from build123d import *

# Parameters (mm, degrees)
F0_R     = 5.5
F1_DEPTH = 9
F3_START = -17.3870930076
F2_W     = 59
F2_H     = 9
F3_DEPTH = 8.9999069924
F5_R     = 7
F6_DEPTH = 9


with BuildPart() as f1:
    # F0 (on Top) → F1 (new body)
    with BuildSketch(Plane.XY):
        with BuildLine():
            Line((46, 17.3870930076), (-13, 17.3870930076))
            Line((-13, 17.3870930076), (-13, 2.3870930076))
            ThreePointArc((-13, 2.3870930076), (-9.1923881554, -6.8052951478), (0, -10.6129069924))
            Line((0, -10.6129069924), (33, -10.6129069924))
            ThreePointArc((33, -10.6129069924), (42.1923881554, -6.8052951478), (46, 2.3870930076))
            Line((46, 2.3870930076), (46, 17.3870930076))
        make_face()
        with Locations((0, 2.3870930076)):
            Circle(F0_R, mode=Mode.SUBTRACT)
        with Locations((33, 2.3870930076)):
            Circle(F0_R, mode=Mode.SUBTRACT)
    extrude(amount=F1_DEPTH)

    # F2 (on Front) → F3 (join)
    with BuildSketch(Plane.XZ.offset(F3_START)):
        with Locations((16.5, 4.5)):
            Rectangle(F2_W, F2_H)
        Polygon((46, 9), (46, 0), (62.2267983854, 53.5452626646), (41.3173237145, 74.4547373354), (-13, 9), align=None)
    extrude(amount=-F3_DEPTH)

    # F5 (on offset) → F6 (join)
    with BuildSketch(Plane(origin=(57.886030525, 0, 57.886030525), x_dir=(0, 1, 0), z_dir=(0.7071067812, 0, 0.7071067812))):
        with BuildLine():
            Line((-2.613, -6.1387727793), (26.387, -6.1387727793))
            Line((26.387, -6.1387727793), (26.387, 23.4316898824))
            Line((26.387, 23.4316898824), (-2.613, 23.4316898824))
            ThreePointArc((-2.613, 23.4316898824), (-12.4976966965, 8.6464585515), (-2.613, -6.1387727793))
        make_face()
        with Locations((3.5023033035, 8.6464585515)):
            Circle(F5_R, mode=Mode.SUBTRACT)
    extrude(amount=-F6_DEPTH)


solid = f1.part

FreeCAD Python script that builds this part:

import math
import FreeCAD as App
import Part
import Sketcher
from FreeCAD import Vector
Q = App.Units.Quantity


def add_polygon(sketch, points):
    """Adds a closed chain of lines whose ends are joined by coincident constraints."""
    first, n = sketch.GeometryCount, len(points)
    for a, b in zip(points, points[1:] + points[:1]):
        sketch.addGeometry(Part.LineSegment(App.Vector(*a, 0), App.Vector(*b, 0)), False)
    for i in range(n):
        sketch.addConstraint(Sketcher.Constraint("Coincident", first + i, 2, first + (i + 1) % n, 1))

doc = App.newDocument("Part")
body = doc.addObject("PartDesign::Body", "Body")

sketch1 = body.newObject("Sketcher::SketchObject", "Sketch")
sketch1.AttachmentSupport = (doc.getObject("XY_Plane"), [""])
sketch1.MapMode = "FlatFace"
sketch1.addGeometry(Part.LineSegment(Vector(46, 17, 0), Vector(-13, 17, 0)), False)
sketch1.addGeometry(Part.LineSegment(Vector(-13, 17, 0), Vector(-13, 2, 0)), False)
sketch1.addGeometry(Part.ArcOfCircle(Part.Circle(Vector(0, 2, 0), Vector(0, 0, 1), 13), math.radians(180), math.radians(270)), False)
sketch1.addGeometry(Part.LineSegment(Vector(0, -11, 0), Vector(33, -11, 0)), False)
sketch1.addGeometry(Part.ArcOfCircle(Part.Circle(Vector(33, 2, 0), Vector(0, 0, 1), 13), math.radians(-90), math.radians(0)), False)
sketch1.addGeometry(Part.LineSegment(Vector(46, 2, 0), Vector(46, 17, 0)), False)
sketch1.addGeometry(Part.Circle(Vector(0, 2, 0), Vector(0, 0, 1), 6), False)
sketch1.addGeometry(Part.Circle(Vector(33, 2, 0), Vector(0, 0, 1), 6), False)
sketch1.addConstraint(Sketcher.Constraint("Coincident", 0, 2, 1, 1))
sketch1.addConstraint(Sketcher.Constraint("Tangent", 1, 2, 2, 1))
sketch1.addConstraint(Sketcher.Constraint("Tangent", 2, 2, 3, 1))
sketch1.addConstraint(Sketcher.Constraint("Tangent", 3, 2, 4, 1))
sketch1.addConstraint(Sketcher.Constraint("Tangent", 4, 2, 5, 1))
sketch1.addConstraint(Sketcher.Constraint("Coincident", 5, 2, 0, 1))
sketch1.addConstraint(Sketcher.Constraint("Horizontal", 0))
sketch1.addConstraint(Sketcher.Constraint("Vertical", 1))
sketch1.addConstraint(Sketcher.Constraint("Horizontal", 3))
sketch1.addConstraint(Sketcher.Constraint("Vertical", 5))
sketch1.addConstraint(Sketcher.Constraint("Coincident", 6, 3, 2, 3))
sketch1.addConstraint(Sketcher.Constraint("Coincident", 7, 3, 4, 3))
sketch1.addConstraint(Sketcher.Constraint("Equal", 2, 4))
sketch1.addConstraint(Sketcher.Constraint("Equal", 6, 7))
sketch1.addConstraint(Sketcher.Constraint("PointOnObject", 2, 3, -2))
sketch1.addConstraint(Sketcher.Constraint("Diameter", 6, 11.0))
sketch1.addConstraint(Sketcher.Constraint("Radius", 2, 13.0))
sketch1.addConstraint(Sketcher.Constraint("DistanceX", 0, 2, 0, 1, 59.0))
sketch1.addConstraint(Sketcher.Constraint("DistanceY", 1, 2, 1, 1, 15.0))
sketch1.addConstraint(Sketcher.Constraint("DistanceY", -1, 1, 2, 3, 2.387093))
pad1 = body.newObject("PartDesign::Pad", "Pad")
pad1.Profile = sketch1
pad1.Length = 9

sketch2 = body.newObject("Sketcher::SketchObject", "Sketch001")
sketch2.AttachmentSupport = (doc.getObject("XZ_Plane"), [""])
sketch2.MapMode = "FlatFace"
sketch2.AttachmentOffset = App.Placement(Vector(0, 0, -17.387093), App.Rotation())
add_polygon(sketch2, [(-13, 9), (-13, 0), (46, 0), (62, 54), (41, 74)])
sketch2.addConstraint(Sketcher.Constraint("Vertical", 0))
sketch2.addConstraint(Sketcher.Constraint("Horizontal", 1))
sketch2.addConstraint(Sketcher.Constraint("PointOnObject", 0, 2, -1))
sketch2.addConstraint(Sketcher.Constraint("DistanceX", 1, 1, 1, 2, 59.0))
sketch2.addConstraint(Sketcher.Constraint("DistanceY", 0, 2, 0, 1, 9.0))
sketch2.addConstraint(Sketcher.Constraint("Angle", 3, Q("135 deg")))
sketch2.addConstraint(Sketcher.Constraint("DistanceX", 0, 2, -1, 1, 13.0))
sketch2.addConstraint(Sketcher.Constraint("DistanceX", -1, 1, 2, 2, 62.226798))
sketch2.addConstraint(Sketcher.Constraint("Distance", 2, 55.950015))
sketch2.addConstraint(Sketcher.Constraint("Distance", 3, 29.570463))
pad2 = body.newObject("PartDesign::Pad", "Pad001")
pad2.Profile = sketch2
pad2.Length = 8.999907
pad2.Reversed = True

sketch3 = body.newObject("Sketcher::SketchObject", "Sketch002")
sketch3.Placement = App.Placement(Vector(57.886031, 0, 57.886031), App.Rotation(Vector(0, 1, 0), Vector(-0.707106781, 0, 0.707106781), Vector(0.707106781, 0, 0.707106781), "ZXY"))
sketch3.addGeometry(Part.LineSegment(Vector(-3, -6, 0), Vector(26, -6, 0)), False)
sketch3.addGeometry(Part.LineSegment(Vector(26, -6, 0), Vector(26, 23, 0)), False)
sketch3.addGeometry(Part.LineSegment(Vector(26, 23, 0), Vector(-3, 23, 0)), False)
sketch3.addGeometry(Part.ArcOfCircle(Part.Circle(Vector(4, 9, 0), Vector(0, 0, 1), 16), math.radians(112), math.radians(248)), False)
sketch3.addGeometry(Part.Circle(Vector(4, 9, 0), Vector(0, 0, 1), 7), False)
sketch3.addConstraint(Sketcher.Constraint("Coincident", 0, 2, 1, 1))
sketch3.addConstraint(Sketcher.Constraint("Coincident", 1, 2, 2, 1))
sketch3.addConstraint(Sketcher.Constraint("Coincident", 2, 2, 3, 1))
sketch3.addConstraint(Sketcher.Constraint("Coincident", 3, 2, 0, 1))
sketch3.addConstraint(Sketcher.Constraint("Horizontal", 0))
sketch3.addConstraint(Sketcher.Constraint("Vertical", 1))
sketch3.addConstraint(Sketcher.Constraint("Horizontal", 2))
sketch3.addConstraint(Sketcher.Constraint("Coincident", 4, 3, 3, 3))
sketch3.addConstraint(Sketcher.Constraint("Vertical", 2, 2, 3, 2))
sketch3.addConstraint(Sketcher.Constraint("Diameter", 4, 14.0))
sketch3.addConstraint(Sketcher.Constraint("Radius", 3, 16.0))
sketch3.addConstraint(Sketcher.Constraint("DistanceX", 0, 1, 0, 2, 29.0))
sketch3.addConstraint(Sketcher.Constraint("DistanceX", -1, 1, 0, 2, 26.387))
sketch3.addConstraint(Sketcher.Constraint("DistanceY", 1, 1, 1, 2, 29.570463))
sketch3.addConstraint(Sketcher.Constraint("DistanceY", -1, 1, 3, 3, 8.646459))
pad3 = body.newObject("PartDesign::Pad", "Pad002")
pad3.Profile = sketch3
pad3.Length = 9
pad3.Reversed = True

doc.recompute()
